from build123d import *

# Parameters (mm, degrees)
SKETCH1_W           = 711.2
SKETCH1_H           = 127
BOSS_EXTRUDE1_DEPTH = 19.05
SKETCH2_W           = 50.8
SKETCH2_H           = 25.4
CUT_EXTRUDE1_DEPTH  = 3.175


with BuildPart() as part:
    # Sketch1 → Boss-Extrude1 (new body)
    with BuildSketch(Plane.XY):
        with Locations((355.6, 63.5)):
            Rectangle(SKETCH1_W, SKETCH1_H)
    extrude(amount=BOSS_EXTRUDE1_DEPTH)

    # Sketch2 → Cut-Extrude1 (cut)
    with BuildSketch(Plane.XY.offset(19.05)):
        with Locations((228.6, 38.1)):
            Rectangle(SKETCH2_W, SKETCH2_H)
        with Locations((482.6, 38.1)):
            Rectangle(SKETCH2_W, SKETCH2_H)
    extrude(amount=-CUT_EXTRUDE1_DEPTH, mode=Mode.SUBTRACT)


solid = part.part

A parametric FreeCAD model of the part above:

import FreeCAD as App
import Part
import Sketcher
Q = App.Units.Quantity


def add_polygon(sketch, points):
    """Adds a closed chain of lines whose ends are joined by coincident constraints."""
    first, n = sketch.GeometryCount, len(points)
    for a, b in zip(points, points[1:] + points[:1]):
        sketch.addGeometry(Part.LineSegment(App.Vector(*a, 0), App.Vector(*b, 0)), False)
    for i in range(n):
        sketch.addConstraint(Sketcher.Constraint("Coincident", first + i, 2, first + (i + 1) % n, 1))

doc = App.newDocument("Part")
params = doc.addObject("Spreadsheet::Sheet", "Params")
for row, (alias, value) in enumerate([
    ("sketch1_width", "28 in"),
    ("sketch1_height", "5 in"),
    ("pad1_length", "0.75 in"),
    ("sketch2_width", "2 in"),
    ("sketch2_height", "1 in"),
    ("pocket1_length", "0.125 in"),
], start=1):
    params.set(f"A{row}", alias)
    params.set(f"B{row}", "=" + value)
    params.setAlias(f"B{row}", alias)

body = doc.addObject("PartDesign::Body", "Body")

sketch1 = body.newObject("Sketcher::SketchObject", "Sketch")
sketch1.AttachmentSupport = (doc.getObject("XY_Plane"), [""])
sketch1.MapMode = "FlatFace"
add_polygon(sketch1, [(0, 127), (0, 0), (711.2, 0), (711.2, 127)])
sketch1.addConstraint([
    Sketcher.Constraint("Vertical", 0),
    Sketcher.Constraint("Horizontal", 1),
    Sketcher.Constraint("Vertical", 2),
    Sketcher.Constraint("Horizontal", 3),
    Sketcher.Constraint("Coincident", 0, 2, -1, 1),
    Sketcher.Constraint("DistanceX", 1, 1, 1, 2, Q("28 in")),
    Sketcher.Constraint("DistanceY", 0, 2, 0, 1, Q("5 in")),
])
sketch1.setExpression("Constraints[9]", "Params.sketch1_width")
sketch1.setExpression("Constraints[10]", "Params.sketch1_height")
pad1 = body.newObject("PartDesign::Pad", "Pad")
pad1.Profile = sketch1
pad1.setExpression("Length", "Params.pad1_length")

sketch2 = body.newObject("Sketcher::SketchObject", "Sketch001")
sketch2.AttachmentSupport = (doc.getObject("XY_Plane"), [""])
sketch2.MapMode = "FlatFace"
sketch2.AttachmentOffset = App.Placement(App.Vector(0, 0, 0.75 * 25.4), App.Rotation())
add_polygon(sketch2, [(203.2, 50.8), (203.2, 25.4), (254, 25.4), (254, 50.8)])
add_polygon(sketch2, [(457.2, 50.8), (457.2, 25.4), (508, 25.4), (508, 50.8)])
sketch2.addConstraint([
    Sketcher.Constraint("Vertical", 0),
    Sketcher.Constraint("Horizontal", 1),
    Sketcher.Constraint("Vertical", 2),
    Sketcher.Constraint("Horizontal", 3),
    Sketcher.Constraint("Vertical", 4),
    Sketcher.Constraint("Horizontal", 5),
    Sketcher.Constraint("Vertical", 6),
    Sketcher.Constraint("Horizontal", 7),
    Sketcher.Constraint("Horizontal", 1, 2, 4, 2),
    Sketcher.Constraint("Horizontal", 3, 2, 6, 2),
    Sketcher.Constraint("Equal", 3, 5),
    Sketcher.Constraint("DistanceX", 1, 1, 1, 2, Q("2 in")),
    Sketcher.Constraint("DistanceY", 0, 2, 0, 1, Q("1 in")),
    Sketcher.Constraint("DistanceX", -1, 1, 0, 2, Q("8 in")),
    Sketcher.Constraint("DistanceY", -1, 1, 0, 2, Q("1 in")),
    Sketcher.Constraint("DistanceX", -1, 1, 4, 2, Q("18 in")),
])
sketch2.setExpression("Constraints[19]", "Params.sketch2_width")
sketch2.setExpression("Constraints[20]", "Params.sketch2_height")
pocket1 = body.newObject("PartDesign::Pocket", "Pocket")
pocket1.Profile = sketch2
pocket1.setExpression("Length", "Params.pocket1_length")

doc.recompute()
